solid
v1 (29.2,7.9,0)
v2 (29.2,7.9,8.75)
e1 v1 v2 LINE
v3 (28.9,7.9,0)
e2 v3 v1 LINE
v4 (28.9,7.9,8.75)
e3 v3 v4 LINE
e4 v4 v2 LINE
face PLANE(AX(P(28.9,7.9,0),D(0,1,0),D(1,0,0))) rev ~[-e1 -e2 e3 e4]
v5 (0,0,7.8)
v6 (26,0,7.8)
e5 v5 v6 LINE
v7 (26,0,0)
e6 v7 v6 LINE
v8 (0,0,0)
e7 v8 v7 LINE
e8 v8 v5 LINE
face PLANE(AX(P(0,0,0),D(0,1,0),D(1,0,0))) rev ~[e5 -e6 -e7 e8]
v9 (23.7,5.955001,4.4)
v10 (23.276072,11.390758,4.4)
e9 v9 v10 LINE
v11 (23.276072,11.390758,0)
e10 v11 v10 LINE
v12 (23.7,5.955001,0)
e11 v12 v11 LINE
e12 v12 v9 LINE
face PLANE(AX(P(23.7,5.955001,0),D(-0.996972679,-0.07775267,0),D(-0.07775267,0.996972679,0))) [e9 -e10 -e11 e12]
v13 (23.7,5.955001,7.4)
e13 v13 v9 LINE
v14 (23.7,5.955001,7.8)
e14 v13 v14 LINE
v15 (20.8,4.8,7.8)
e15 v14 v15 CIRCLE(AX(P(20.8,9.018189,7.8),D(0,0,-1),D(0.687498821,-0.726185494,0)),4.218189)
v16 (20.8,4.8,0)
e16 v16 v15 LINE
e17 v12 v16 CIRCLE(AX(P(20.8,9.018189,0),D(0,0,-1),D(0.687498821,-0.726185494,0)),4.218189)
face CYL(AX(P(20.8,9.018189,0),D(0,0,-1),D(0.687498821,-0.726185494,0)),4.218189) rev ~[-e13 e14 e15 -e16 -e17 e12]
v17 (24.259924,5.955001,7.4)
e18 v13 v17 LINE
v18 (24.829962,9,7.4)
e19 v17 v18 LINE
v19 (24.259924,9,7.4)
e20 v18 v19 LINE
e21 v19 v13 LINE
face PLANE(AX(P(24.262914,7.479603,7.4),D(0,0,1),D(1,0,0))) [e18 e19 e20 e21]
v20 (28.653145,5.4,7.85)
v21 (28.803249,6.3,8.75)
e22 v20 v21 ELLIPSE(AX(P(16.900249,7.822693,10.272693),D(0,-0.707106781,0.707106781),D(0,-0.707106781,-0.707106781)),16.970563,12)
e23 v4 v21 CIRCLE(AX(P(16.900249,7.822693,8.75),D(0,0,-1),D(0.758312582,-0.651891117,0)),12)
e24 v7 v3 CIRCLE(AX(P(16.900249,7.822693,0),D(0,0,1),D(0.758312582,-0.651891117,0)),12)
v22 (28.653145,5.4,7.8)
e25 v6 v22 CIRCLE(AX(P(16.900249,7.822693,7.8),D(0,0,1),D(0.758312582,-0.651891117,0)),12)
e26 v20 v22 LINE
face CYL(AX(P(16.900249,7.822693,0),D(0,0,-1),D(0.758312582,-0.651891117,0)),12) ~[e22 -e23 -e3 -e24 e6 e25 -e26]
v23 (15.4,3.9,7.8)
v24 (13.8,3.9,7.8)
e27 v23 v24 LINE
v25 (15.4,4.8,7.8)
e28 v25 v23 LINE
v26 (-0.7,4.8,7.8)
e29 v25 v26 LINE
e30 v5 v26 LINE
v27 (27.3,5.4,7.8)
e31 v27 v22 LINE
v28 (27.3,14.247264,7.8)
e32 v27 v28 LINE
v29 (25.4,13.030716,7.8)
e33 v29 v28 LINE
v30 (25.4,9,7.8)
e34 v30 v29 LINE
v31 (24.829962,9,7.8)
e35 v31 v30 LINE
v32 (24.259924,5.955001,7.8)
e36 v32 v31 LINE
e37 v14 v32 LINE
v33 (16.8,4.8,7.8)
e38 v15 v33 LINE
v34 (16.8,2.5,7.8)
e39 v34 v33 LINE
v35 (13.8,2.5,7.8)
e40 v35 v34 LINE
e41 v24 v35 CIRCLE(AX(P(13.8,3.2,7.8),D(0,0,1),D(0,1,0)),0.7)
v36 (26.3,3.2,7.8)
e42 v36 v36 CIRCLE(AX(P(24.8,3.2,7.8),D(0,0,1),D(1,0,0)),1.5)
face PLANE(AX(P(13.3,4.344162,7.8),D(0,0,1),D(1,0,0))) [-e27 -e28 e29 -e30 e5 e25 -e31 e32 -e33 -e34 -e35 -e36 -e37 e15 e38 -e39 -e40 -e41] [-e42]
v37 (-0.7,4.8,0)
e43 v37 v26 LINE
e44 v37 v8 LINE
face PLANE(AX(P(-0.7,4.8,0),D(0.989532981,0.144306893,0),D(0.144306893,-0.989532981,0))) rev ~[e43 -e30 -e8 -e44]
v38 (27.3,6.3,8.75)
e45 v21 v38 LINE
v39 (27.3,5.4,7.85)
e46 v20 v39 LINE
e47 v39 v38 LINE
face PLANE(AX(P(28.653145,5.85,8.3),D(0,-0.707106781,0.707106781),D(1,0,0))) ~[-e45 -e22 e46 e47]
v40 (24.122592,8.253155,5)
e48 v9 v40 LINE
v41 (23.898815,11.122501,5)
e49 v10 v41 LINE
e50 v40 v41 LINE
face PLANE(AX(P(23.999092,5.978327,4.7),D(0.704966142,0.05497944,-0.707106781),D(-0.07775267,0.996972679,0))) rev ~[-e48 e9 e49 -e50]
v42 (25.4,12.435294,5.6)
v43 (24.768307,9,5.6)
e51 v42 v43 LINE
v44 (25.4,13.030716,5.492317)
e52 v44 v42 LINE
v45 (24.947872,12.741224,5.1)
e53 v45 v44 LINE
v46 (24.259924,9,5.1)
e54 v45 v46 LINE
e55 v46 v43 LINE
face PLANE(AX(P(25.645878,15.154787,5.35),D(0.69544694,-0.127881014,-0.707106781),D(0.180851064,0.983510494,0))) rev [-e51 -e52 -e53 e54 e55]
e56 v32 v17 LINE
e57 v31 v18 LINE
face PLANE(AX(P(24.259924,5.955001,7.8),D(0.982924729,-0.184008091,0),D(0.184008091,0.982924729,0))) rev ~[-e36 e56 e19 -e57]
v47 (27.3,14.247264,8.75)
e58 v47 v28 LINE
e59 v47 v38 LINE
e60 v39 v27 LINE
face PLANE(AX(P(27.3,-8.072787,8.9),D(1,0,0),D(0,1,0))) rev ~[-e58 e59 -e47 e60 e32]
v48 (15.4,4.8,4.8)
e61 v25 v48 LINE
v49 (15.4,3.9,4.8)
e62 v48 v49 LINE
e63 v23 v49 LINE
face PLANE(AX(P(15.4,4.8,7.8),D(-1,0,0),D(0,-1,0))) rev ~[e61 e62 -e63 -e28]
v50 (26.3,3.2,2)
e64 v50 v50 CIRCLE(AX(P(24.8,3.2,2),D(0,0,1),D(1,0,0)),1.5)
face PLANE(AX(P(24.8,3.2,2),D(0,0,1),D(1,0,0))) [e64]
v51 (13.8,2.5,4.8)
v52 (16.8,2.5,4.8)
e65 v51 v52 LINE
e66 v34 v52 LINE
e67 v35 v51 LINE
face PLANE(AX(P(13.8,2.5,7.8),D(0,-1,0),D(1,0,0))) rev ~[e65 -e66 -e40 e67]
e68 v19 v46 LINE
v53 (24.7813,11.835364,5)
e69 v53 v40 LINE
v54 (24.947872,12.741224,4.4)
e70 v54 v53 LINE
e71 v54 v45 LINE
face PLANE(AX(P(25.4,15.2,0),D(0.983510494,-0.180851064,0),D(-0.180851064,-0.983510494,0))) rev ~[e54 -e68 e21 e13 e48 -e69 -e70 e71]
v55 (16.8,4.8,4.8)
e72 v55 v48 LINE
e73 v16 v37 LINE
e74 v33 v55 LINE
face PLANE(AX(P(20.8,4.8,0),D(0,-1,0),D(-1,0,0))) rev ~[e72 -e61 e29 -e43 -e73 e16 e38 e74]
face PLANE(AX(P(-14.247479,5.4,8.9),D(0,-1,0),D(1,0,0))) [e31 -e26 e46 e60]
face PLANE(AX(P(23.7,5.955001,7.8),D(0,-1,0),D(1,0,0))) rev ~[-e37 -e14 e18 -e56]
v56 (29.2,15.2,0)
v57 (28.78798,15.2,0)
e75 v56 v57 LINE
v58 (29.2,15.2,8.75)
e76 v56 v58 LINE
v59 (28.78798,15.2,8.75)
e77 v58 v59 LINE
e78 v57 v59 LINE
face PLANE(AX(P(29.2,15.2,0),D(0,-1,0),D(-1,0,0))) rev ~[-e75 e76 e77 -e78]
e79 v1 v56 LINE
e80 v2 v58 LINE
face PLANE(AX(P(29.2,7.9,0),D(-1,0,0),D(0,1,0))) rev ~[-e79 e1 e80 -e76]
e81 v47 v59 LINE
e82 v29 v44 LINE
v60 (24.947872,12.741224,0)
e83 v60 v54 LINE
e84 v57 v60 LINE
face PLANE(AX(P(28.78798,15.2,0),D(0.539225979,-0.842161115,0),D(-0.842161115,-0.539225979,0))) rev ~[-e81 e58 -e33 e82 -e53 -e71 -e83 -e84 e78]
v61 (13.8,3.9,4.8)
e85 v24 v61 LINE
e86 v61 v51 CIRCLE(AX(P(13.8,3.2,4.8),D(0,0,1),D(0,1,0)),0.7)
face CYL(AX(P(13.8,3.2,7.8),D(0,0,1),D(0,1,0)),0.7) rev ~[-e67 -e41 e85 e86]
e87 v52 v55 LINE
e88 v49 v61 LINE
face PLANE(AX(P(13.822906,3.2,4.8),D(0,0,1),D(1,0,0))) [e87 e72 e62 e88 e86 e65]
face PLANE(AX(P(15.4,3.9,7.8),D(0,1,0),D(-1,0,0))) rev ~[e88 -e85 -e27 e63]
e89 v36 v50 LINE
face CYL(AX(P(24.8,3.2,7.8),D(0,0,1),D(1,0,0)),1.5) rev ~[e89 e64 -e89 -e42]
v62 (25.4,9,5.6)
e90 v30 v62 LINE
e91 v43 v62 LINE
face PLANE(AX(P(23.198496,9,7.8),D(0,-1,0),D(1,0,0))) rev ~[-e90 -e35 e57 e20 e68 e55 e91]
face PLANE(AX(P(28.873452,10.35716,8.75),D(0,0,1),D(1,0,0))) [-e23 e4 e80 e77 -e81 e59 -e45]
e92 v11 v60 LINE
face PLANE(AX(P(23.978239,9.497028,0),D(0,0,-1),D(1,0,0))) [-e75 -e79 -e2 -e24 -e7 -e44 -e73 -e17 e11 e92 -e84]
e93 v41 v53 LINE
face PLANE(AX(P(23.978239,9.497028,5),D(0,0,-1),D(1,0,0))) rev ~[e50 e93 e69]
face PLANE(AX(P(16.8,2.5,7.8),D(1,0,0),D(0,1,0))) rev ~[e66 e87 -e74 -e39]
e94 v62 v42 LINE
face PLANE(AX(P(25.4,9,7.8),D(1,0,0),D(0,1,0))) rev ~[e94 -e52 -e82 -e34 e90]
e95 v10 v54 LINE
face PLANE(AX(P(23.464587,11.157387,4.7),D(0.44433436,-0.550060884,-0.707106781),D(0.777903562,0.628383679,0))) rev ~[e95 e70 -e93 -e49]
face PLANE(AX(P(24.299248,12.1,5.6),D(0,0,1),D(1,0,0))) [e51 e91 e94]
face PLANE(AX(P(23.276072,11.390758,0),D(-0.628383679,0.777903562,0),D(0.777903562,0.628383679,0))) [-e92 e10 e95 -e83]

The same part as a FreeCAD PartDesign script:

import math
import FreeCAD as App
import Part
import Sketcher

V = App.Vector


def edges_at(feature, points):
    """Names of the edges that pass closest to the given points."""
    edges = feature.Shape.Edges
    near = lambda p: min(range(len(edges)), key=lambda i: edges[i].distToShape(Part.Vertex(*p))[0])
    return sorted({f"Edge{near(p) + 1}" for p in points})


def add_polygon(sketch, points):
    """Adds a closed chain of lines whose ends are joined by coincident constraints."""
    first, n = sketch.GeometryCount, len(points)
    for a, b in zip(points, points[1:] + points[:1]):
        sketch.addGeometry(Part.LineSegment(App.Vector(*a, 0), App.Vector(*b, 0)), False)
    for i in range(n):
        sketch.addConstraint(Sketcher.Constraint("Coincident", first + i, 2, first + (i + 1) % n, 1))

doc = App.newDocument("Part")
body = doc.addObject("PartDesign::Body", "Body")

sketch1 = doc.addObject("Sketcher::SketchObject", "Sketch")
body.addObject(sketch1)
sketch1.AttachmentSupport = (doc.XY_Plane, [""])
sketch1.MapMode = "FlatFace"
sketch1.addGeometry(Part.LineSegment(V(-0.7, 4.8, 0), V(0, 0, 0)), False)
sketch1.addGeometry(Part.LineSegment(V(0, 0, 0), V(26, 0, 0)), False)
sketch1.addGeometry(Part.ArcOfCircle(Part.Circle(V(16.900249, 7.822693, 0), V(0, 0, 1), 12), math.radians(-40.684336), math.radians(0.369114)), False)
sketch1.addGeometry(Part.LineSegment(V(28.9, 7.9, 0), V(29.2, 7.9, 0)), False)
sketch1.addGeometry(Part.LineSegment(V(29.2, 7.9, 0), V(29.2, 15.2, 0)), False)
sketch1.addGeometry(Part.LineSegment(V(29.2, 15.2, 0), V(25.4, 15.2, 0)), False)
sketch1.addGeometry(Part.LineSegment(V(25.4, 15.2, 0), V(23.7, 5.955001, 0)), False)
sketch1.addGeometry(Part.ArcOfCircle(Part.Circle(V(20.8, 9.018189, 0), V(0, 0, 1), 4.218189), math.radians(-90), math.radians(-46.567557)), False)
sketch1.addGeometry(Part.LineSegment(V(20.8, 4.8, 0), V(-0.7, 4.8, 0)), False)
sketch1.addConstraint(Sketcher.Constraint("Coincident", 0, 2, 1, 1))
sketch1.addConstraint(Sketcher.Constraint("Coincident", 1, 2, 2, 1))
sketch1.addConstraint(Sketcher.Constraint("Coincident", 2, 2, 3, 1))
sketch1.addConstraint(Sketcher.Constraint("Coincident", 3, 2, 4, 1))
sketch1.addConstraint(Sketcher.Constraint("Coincident", 4, 2, 5, 1))
sketch1.addConstraint(Sketcher.Constraint("Coincident", 5, 2, 6, 1))
sketch1.addConstraint(Sketcher.Constraint("Coincident", 6, 2, 7, 2))
sketch1.addConstraint(Sketcher.Constraint("Tangent", 7, 1, 8, 1))
sketch1.addConstraint(Sketcher.Constraint("Coincident", 8, 2, 0, 1))
sketch1.addConstraint(Sketcher.Constraint("Horizontal", 1))
sketch1.addConstraint(Sketcher.Constraint("Horizontal", 3))
sketch1.addConstraint(Sketcher.Constraint("Vertical", 4))
sketch1.addConstraint(Sketcher.Constraint("Horizontal", 5))
sketch1.addConstraint(Sketcher.Constraint("Horizontal", 8))
sketch1.addConstraint(Sketcher.Constraint("Coincident", 0, 2, -1, 1))
sketch1.addConstraint(Sketcher.Constraint("Radius", 2, 12.0))
sketch1.addConstraint(Sketcher.Constraint("DistanceX", 1, 1, 1, 2, 26.0))
sketch1.addConstraint(Sketcher.Constraint("DistanceX", 3, 1, 3, 2, 0.3))
sketch1.addConstraint(Sketcher.Constraint("DistanceX", 5, 2, 5, 1, 3.8))
sketch1.addConstraint(Sketcher.Constraint("DistanceX", 8, 2, 8, 1, 21.5))
sketch1.addConstraint(Sketcher.Constraint("DistanceY", 4, 1, 4, 2, 7.3))
sketch1.addConstraint(Sketcher.Constraint("Distance", 6, 9.4))
sketch1.addConstraint(Sketcher.Constraint("DistanceX", -1, 1, 7, 3, 20.8))
sketch1.addConstraint(Sketcher.Constraint("DistanceX", -1, 1, 2, 2, 28.9))
sketch1.addConstraint(Sketcher.Constraint("DistanceY", -1, 1, 2, 2, 7.9))
sketch1.addConstraint(Sketcher.Constraint("DistanceX", -1, 1, 6, 2, 23.7))
sketch1.addConstraint(Sketcher.Constraint("DistanceY", -1, 1, 7, 1, 4.8))
pad1 = doc.addObject("PartDesign::Pad", "Pad")
body.addObject(pad1)
pad1.Profile = sketch1
pad1.Length = 8.9

sketch2 = doc.addObject("Sketcher::SketchObject", "Sketch001")
body.addObject(sketch2)
sketch2.AttachmentSupport = (doc.XY_Plane, [""])
sketch2.MapMode = "FlatFace"
sketch2.AttachmentOffset = App.Placement(V(0, 0, 8.9), App.Rotation())
add_polygon(sketch2, [(-0.7, 16.761111), (-0.7, -8.072787), (27.3, -8.072787), (27.3, 16.761111)])
sketch2.addConstraint(Sketcher.Constraint("Vertical", 0))
sketch2.addConstraint(Sketcher.Constraint("Horizontal", 1))
sketch2.addConstraint(Sketcher.Constraint("Vertical", 2))
sketch2.addConstraint(Sketcher.Constraint("Horizontal", 3))
sketch2.addConstraint(Sketcher.Constraint("DistanceX", 1, 1, 1, 2, 28.0))
sketch2.addConstraint(Sketcher.Constraint("DistanceX", 0, 2, -1, 1, 0.7))
sketch2.addConstraint(Sketcher.Constraint("DistanceY", 0, 2, 0, 1, 24.833898))
sketch2.addConstraint(Sketcher.Constraint("DistanceY", -1, 1, 2, 2, 16.761111))
pocket1 = doc.addObject("PartDesign::Pocket", "Pocket")
body.addObject(pocket1)
pocket1.Profile = sketch2
pocket1.Length = 1.1

sketch3 = doc.addObject("Sketcher::SketchObject", "Sketch002")
body.addObject(sketch3)
sketch3.AttachmentSupport = (doc.XY_Plane, [""])
sketch3.MapMode = "FlatFace"
sketch3.AttachmentOffset = App.Placement(V(0, 0, 8.9), App.Rotation())
add_polygon(sketch3, [(-14.247479, 5.4), (-14.247479, 0.4), (67.000305, 0.4), (67.000305, 5.4)])
sketch3.addConstraint(Sketcher.Constraint("Vertical", 0))
sketch3.addConstraint(Sketcher.Constraint("Horizontal", 1))
sketch3.addConstraint(Sketcher.Constraint("Vertical", 2))
sketch3.addConstraint(Sketcher.Constraint("Horizontal", 3))
sketch3.addConstraint(Sketcher.Constraint("DistanceY", 0, 2, 0, 1, 5.0))
sketch3.addConstraint(Sketcher.Constraint("DistanceY", -1, 1, 0, 2, 0.4))
sketch3.addConstraint(Sketcher.Constraint("DistanceX", 1, 1, 1, 2, 81.247784))
sketch3.addConstraint(Sketcher.Constraint("DistanceX", 0, 2, -1, 1, 14.247479))
pocket2 = doc.addObject("PartDesign::Pocket", "Pocket001")
body.addObject(pocket2)
pocket2.Profile = sketch3
pocket2.Length = 1.1

sketch4 = doc.addObject("Sketcher::SketchObject", "Sketch003")
body.addObject(sketch4)
sketch4.AttachmentSupport = (doc.XY_Plane, [""])
sketch4.MapMode = "FlatFace"
sketch4.AttachmentOffset = App.Placement(V(0, 0, 7.8), App.Rotation())
sketch4.addGeometry(Part.Circle(V(24.8, 3.2, 0), V(0, 0, 1), 1.5), False)
sketch4.addConstraint(Sketcher.Constraint("Diameter", 0, 3.0))
sketch4.addConstraint(Sketcher.Constraint("DistanceX", -1, 1, 0, 3, 24.8))
sketch4.addConstraint(Sketcher.Constraint("DistanceY", -1, 1, 0, 3, 3.2))
pocket3 = doc.addObject("PartDesign::Pocket", "Pocket002")
body.addObject(pocket3)
pocket3.Profile = sketch4
pocket3.Length = 5.8

sketch5 = doc.addObject("Sketcher::SketchObject", "Sketch004")
body.addObject(sketch5)
sketch5.AttachmentSupport = (doc.XY_Plane, [""])
sketch5.MapMode = "FlatFace"
sketch5.AttachmentOffset = App.Placement(V(0, 0, 8.9), App.Rotation())
add_polygon(sketch5, [(24.527097, 16.884711), (24.527097, 3.829609), (33.219807, 3.829609), (33.219807, 16.884711)])
sketch5.addConstraint(Sketcher.Constraint("Vertical", 0))
sketch5.addConstraint(Sketcher.Constraint("Horizontal", 1))
sketch5.addConstraint(Sketcher.Constraint("Vertical", 2))
sketch5.addConstraint(Sketcher.Constraint("Horizontal", 3))
sketch5.addConstraint(Sketcher.Constraint("DistanceY", 0, 2, 0, 1, 13.055102))
sketch5.addConstraint(Sketcher.Constraint("DistanceX", 1, 1, 1, 2, 8.69271))
sketch5.addConstraint(Sketcher.Constraint("DistanceY", -1, 1, 0, 2, 3.829609))
sketch5.addConstraint(Sketcher.Constraint("DistanceX", -1, 1, 0, 2, 24.527097))
pocket4 = doc.addObject("PartDesign::Pocket", "Pocket003")
body.addObject(pocket4)
pocket4.Profile = sketch5
pocket4.Length = 0.15
doc.recompute()

chamfer = doc.addObject("PartDesign::Chamfer", "Chamfer")
body.addObject(chamfer)
chamfer.Base = (pocket4, edges_at(pocket4, [(27.977, 5.4, 8.75)]))
chamfer.Size = 0.9

sketch6 = doc.addObject("Sketcher::SketchObject", "Sketch005")
body.addObject(sketch6)
sketch6.AttachmentSupport = (doc.XY_Plane, [""])
sketch6.MapMode = "FlatFace"
sketch6.AttachmentOffset = App.Placement(V(0, 0, 7.8), App.Rotation())
sketch6.addGeometry(Part.ArcOfCircle(Part.Circle(V(13.8, 3.2, 0), V(0, 0, 1), 0.7), math.radians(90), math.radians(270)), False)
sketch6.addGeometry(Part.LineSegment(V(13.8, 2.5, 0), V(16.8, 2.5, 0)), False)
sketch6.addGeometry(Part.LineSegment(V(16.8, 2.5, 0), V(16.8, 4.8, 0)), False)
sketch6.addGeometry(Part.LineSegment(V(16.8, 4.8, 0), V(15.4, 4.8, 0)), False)
sketch6.addGeometry(Part.LineSegment(V(15.4, 4.8, 0), V(15.4, 3.9, 0)), False)
sketch6.addGeometry(Part.LineSegment(V(15.4, 3.9, 0), V(13.8, 3.9, 0)), False)
sketch6.addConstraint(Sketcher.Constraint("Tangent", 0, 2, 1, 1))
sketch6.addConstraint(Sketcher.Constraint("Coincident", 1, 2, 2, 1))
sketch6.addConstraint(Sketcher.Constraint("Coincident", 2, 2, 3, 1))
sketch6.addConstraint(Sketcher.Constraint("Coincident", 3, 2, 4, 1))
sketch6.addConstraint(Sketcher.Constraint("Coincident", 4, 2, 5, 1))
sketch6.addConstraint(Sketcher.Constraint("Tangent", 5, 2, 0, 1))
sketch6.addConstraint(Sketcher.Constraint("Horizontal", 1))
sketch6.addConstraint(Sketcher.Constraint("Vertical", 2))
sketch6.addConstraint(Sketcher.Constraint("Horizontal", 3))
sketch6.addConstraint(Sketcher.Constraint("Vertical", 4))
sketch6.addConstraint(Sketcher.Constraint("Horizontal", 5))
sketch6.addConstraint(Sketcher.Constraint("Radius", 0, 0.7))
sketch6.addConstraint(Sketcher.Constraint("DistanceX", 1, 1, 1, 2, 3.0))
sketch6.addConstraint(Sketcher.Constraint("DistanceX", 3, 2, 3, 1, 1.4))
sketch6.addConstraint(Sketcher.Constraint("DistanceY", 2, 1, 2, 2, 2.3))
sketch6.addConstraint(Sketcher.Constraint("DistanceX", -1, 1, 0, 3, 13.8))
sketch6.addConstraint(Sketcher.Constraint("DistanceY", -1, 1, 0, 3, 3.2))
pocket5 = doc.addObject("PartDesign::Pocket", "Pocket004")
body.addObject(pocket5)
pocket5.Profile = sketch6
pocket5.Length = 3

sketch7 = doc.addObject("Sketcher::SketchObject", "Sketch006")
body.addObject(sketch7)
sketch7.AttachmentSupport = (doc.XY_Plane, [""])
sketch7.MapMode = "FlatFace"
sketch7.AttachmentOffset = App.Placement(V(0, 0, 7.8), App.Rotation())
add_polygon(sketch7, [(23.198496, 15.2), (23.198496, 9), (25.4, 9), (25.4, 15.2)])
sketch7.addConstraint(Sketcher.Constraint("Vertical", 0))
sketch7.addConstraint(Sketcher.Constraint("Horizontal", 1))
sketch7.addConstraint(Sketcher.Constraint("Vertical", 2))
sketch7.addConstraint(Sketcher.Constraint("Horizontal", 3))
sketch7.addConstraint(Sketcher.Constraint("DistanceY", 0, 2, 0, 1, 6.2))
sketch7.addConstraint(Sketcher.Constraint("DistanceY", -1, 1, 0, 2, 9.0))
sketch7.addConstraint(Sketcher.Constraint("DistanceX", -1, 1, 1, 2, 25.4))
sketch7.addConstraint(Sketcher.Constraint("DistanceX", 1, 1, 1, 2, 2.201504))
pocket6 = doc.addObject("PartDesign::Pocket", "Pocket005")
body.addObject(pocket6)
pocket6.Profile = sketch7
pocket6.Length = 2.2
doc.recompute()

chamfer2 = doc.addObject("PartDesign::Chamfer", "Chamfer001")
body.addObject(chamfer2)
chamfer2.Base = (pocket6, edges_at(pocket6, [(24.83, 12.1, 5.6)]))
chamfer2.Size = 0.5

sketch8 = doc.addObject("Sketcher::SketchObject", "Sketch007")
body.addObject(sketch8)
sketch8.AttachmentSupport = (doc.XY_Plane, [""])
sketch8.MapMode = "FlatFace"
sketch8.AttachmentOffset = App.Placement(V(0, 0, 7.8), App.Rotation())
add_polygon(sketch8, [(24.829962, 9), (24.259924, 9), (23.7, 5.955001), (24.259924, 5.955001)])
sketch8.addConstraint(Sketcher.Constraint("Horizontal", 0))
sketch8.addConstraint(Sketcher.Constraint("Horizontal", 2))
sketch8.addConstraint(Sketcher.Constraint("Vertical", 0, 2, 2, 2))
sketch8.addConstraint(Sketcher.Constraint("DistanceY", -1, 1, 0, 2, 9.0))
sketch8.addConstraint(Sketcher.Constraint("DistanceX", -1, 1, 1, 2, 23.7))
sketch8.addConstraint(Sketcher.Constraint("DistanceY", -1, 1, 1, 2, 5.955001))
sketch8.addConstraint(Sketcher.Constraint("Distance", 1, 3.096051))
sketch8.addConstraint(Sketcher.Constraint("DistanceX", 0, 2, 0, 1, 0.570038))
pocket7 = doc.addObject("PartDesign::Pocket", "Pocket006")
body.addObject(pocket7)
pocket7.Profile = sketch8
pocket7.Length = 0.4

sketch9 = doc.addObject("Sketcher::SketchObject", "Sketch008")
body.addObject(sketch9)
sketch9.AttachmentSupport = (doc.XY_Plane, [""])
sketch9.MapMode = "FlatFace"
add_polygon(sketch9, [(28.78798, 15.2), (24.947872, 12.741224), (25.4, 15.2)])
sketch9.addConstraint(Sketcher.Constraint("Horizontal", 2))
sketch9.addConstraint(Sketcher.Constraint("Distance", 1, 2.5))
sketch9.addConstraint(Sketcher.Constraint("DistanceX", -1, 1, 1, 2, 25.4))
sketch9.addConstraint(Sketcher.Constraint("DistanceY", -1, 1, 1, 2, 15.2))
sketch9.addConstraint(Sketcher.Constraint("DistanceX", 2, 1, 2, 2, 3.38798))
sketch9.addConstraint(Sketcher.Constraint("Distance", 0, 4.559825))
pocket8 = doc.addObject("PartDesign::Pocket", "Pocket007")
body.addObject(pocket8)
pocket8.Profile = sketch9
pocket8.Length = 25
pocket8.Reversed = True

sketch10 = doc.addObject("Sketcher::SketchObject", "Sketch009")
body.addObject(sketch10)
sketch10.AttachmentSupport = (doc.XY_Plane, [""])
sketch10.MapMode = "FlatFace"
add_polygon(sketch10, [(23.276072, 11.390758), (24.947872, 12.741224), (23.7, 5.955001)])
sketch10.addConstraint(Sketcher.Constraint("Distance", 1, 6.9))
sketch10.addConstraint(Sketcher.Constraint("DistanceX", -1, 1, 1, 2, 23.7))
sketch10.addConstraint(Sketcher.Constraint("DistanceY", -1, 1, 1, 2, 5.955001))
sketch10.addConstraint(Sketcher.Constraint("DistanceX", 2, 2, 0, 2, 1.6718))
sketch10.addConstraint(Sketcher.Constraint("Distance", 0, 2.14911))
sketch10.addConstraint(Sketcher.Constraint("DistanceY", -1, 1, 2, 2, 11.390758))
pad2 = doc.addObject("PartDesign::Pad", "Pad001")
body.addObject(pad2)
pad2.Profile = sketch10
pad2.Length = 5
doc.recompute()

chamfer3 = doc.addObject("PartDesign::Chamfer", "Chamfer002")
body.addObject(chamfer3)
chamfer3.Base = (pad2, edges_at(pad2, [(23.488, 8.673, 5), (24.112, 12.066, 5)]))
chamfer3.Size = 0.6

doc.recompute()
